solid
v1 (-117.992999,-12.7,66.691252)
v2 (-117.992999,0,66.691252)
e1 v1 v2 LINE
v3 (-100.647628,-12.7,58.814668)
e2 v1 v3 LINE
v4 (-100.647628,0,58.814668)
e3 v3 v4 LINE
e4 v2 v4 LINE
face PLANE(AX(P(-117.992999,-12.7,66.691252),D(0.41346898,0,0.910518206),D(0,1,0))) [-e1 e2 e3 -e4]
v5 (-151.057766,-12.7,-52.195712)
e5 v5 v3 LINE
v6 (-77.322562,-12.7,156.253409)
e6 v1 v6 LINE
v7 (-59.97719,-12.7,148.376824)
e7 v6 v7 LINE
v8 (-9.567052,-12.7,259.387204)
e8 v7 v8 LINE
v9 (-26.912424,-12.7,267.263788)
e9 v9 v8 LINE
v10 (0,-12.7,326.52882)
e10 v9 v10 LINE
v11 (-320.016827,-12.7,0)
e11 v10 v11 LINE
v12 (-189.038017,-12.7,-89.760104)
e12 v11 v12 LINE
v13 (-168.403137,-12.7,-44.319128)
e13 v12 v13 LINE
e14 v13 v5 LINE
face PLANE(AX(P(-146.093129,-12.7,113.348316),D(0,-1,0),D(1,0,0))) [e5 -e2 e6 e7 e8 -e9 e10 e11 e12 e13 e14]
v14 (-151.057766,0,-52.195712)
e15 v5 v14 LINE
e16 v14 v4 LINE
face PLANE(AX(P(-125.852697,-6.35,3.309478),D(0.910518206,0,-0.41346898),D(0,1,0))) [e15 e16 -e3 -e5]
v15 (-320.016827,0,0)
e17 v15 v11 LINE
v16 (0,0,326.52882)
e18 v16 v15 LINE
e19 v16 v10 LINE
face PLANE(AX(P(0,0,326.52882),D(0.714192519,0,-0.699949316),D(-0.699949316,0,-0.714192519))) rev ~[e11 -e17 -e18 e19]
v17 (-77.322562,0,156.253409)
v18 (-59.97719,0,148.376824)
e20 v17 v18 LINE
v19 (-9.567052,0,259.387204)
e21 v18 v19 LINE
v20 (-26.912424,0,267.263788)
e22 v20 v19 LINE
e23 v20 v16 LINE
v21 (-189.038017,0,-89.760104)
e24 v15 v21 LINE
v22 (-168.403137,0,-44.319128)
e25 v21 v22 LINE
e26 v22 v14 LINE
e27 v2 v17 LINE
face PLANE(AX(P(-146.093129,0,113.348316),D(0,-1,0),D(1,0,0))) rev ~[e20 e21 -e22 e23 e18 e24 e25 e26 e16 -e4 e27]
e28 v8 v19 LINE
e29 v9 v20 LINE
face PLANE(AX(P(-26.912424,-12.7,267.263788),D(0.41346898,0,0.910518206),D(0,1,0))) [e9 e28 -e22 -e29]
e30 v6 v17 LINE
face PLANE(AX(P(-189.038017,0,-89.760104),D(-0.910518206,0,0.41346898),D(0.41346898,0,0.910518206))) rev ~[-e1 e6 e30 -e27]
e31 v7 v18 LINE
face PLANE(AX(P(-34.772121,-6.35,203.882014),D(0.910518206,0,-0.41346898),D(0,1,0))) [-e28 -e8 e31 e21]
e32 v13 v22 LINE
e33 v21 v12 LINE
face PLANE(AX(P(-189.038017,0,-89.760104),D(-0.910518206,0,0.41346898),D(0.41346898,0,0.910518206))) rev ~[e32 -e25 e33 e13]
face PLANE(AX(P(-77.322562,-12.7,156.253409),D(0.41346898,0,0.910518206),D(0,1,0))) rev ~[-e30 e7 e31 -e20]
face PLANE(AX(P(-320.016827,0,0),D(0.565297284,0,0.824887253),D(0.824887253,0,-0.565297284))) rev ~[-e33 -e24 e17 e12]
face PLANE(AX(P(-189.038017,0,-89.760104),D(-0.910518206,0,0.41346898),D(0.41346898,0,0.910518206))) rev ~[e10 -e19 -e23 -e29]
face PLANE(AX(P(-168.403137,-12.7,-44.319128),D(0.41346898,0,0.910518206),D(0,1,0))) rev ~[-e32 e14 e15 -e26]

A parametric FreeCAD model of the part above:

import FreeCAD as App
import Part
import Sketcher
from FreeCAD import Vector
Q = App.Units.Quantity

doc = App.newDocument("Part")
body = doc.addObject("PartDesign::Body", "Body")

# Sketch on XZ plane
sketch1 = body.newObject("Sketcher::SketchObject", "Sketch")
sketch1.AttachmentSupport = (doc.getObject("XZ_Plane"), [""])
sketch1.MapMode = "FlatFace"
sketch1.addGeometry([
    Part.LineSegment(Vector(0, 327, 0), Vector(-320, 0, 0)),
    Part.LineSegment(Vector(-320, 0, 0), Vector(-189, -90, 0)),
    Part.LineSegment(Vector(-189, -90, 0), Vector(0, 327, 0)),
], False)
sketch1.addConstraint([
    Sketcher.Constraint("Coincident", 0, 2, 1, 1),
    Sketcher.Constraint("Coincident", 1, 2, 2, 1),
    Sketcher.Constraint("Coincident", 2, 2, 0, 1),
    Sketcher.Constraint("PointOnObject", 0, 2, -1),
    Sketcher.Constraint("PointOnObject", 2, 2, -2),
    Sketcher.Constraint("Equal", 0, 2),
    Sketcher.Constraint("Distance", 0, Q("18 in")),
    Sketcher.Constraint("DistanceY", -1, 1, 2, 2, Q("326.52882 mm")),
    Sketcher.Constraint("DistanceX", 0, 2, 1, 2, Q("130.97881 mm")),
])
pad1 = body.newObject("PartDesign::Pad", "Pad")
pad1.Profile = sketch1
pad1.Length = Q("0.5 in")

# Sketch on an angled plane
sketch2 = body.newObject("Sketcher::SketchObject", "Sketch001")
sketch2.Placement = App.Placement(Vector(-122.928642, 0, 55.822256), App.Rotation(Vector(0, 1, 0), Vector(0.41346898, 0, 0.910518206), Vector(0.910518206, 0, -0.41346898), "ZXY"))
sketch2.addGeometry([
    Part.LineSegment(Vector(-13, 232, 0), Vector(-13, 110, 0)),  # 0
    Part.LineSegment(Vector(-13, 110, 0), Vector(0, 110, 0)),  # 1
    Part.LineSegment(Vector(0, 110, 0), Vector(0, 232, 0)),  # 2
    Part.LineSegment(Vector(0, 232, 0), Vector(-13, 232, 0)),  # 3
    Part.LineSegment(Vector(-13, 12, 0), Vector(-13, -110, 0)),  # 4
    Part.LineSegment(Vector(-13, -110, 0), Vector(0, -110, 0)),  # 5
    Part.LineSegment(Vector(0, -110, 0), Vector(0, 12, 0)),  # 6
    Part.LineSegment(Vector(0, 12, 0), Vector(-13, 12, 0)),  # 7
], False)
sketch2.addConstraint([
    Sketcher.Constraint("Coincident", 0, 2, 1, 1),
    Sketcher.Constraint("Coincident", 1, 2, 2, 1),
    Sketcher.Constraint("Coincident", 2, 2, 3, 1),
    Sketcher.Constraint("Coincident", 3, 2, 0, 1),
    Sketcher.Constraint("Coincident", 4, 2, 5, 1),
    Sketcher.Constraint("Coincident", 5, 2, 6, 1),
    Sketcher.Constraint("Coincident", 6, 2, 7, 1),
    Sketcher.Constraint("Coincident", 7, 2, 4, 1),
    Sketcher.Constraint("Vertical", 0),
    Sketcher.Constraint("Horizontal", 1),
    Sketcher.Constraint("Vertical", 2),
    Sketcher.Constraint("Horizontal", 3),
    Sketcher.Constraint("Vertical", 4),
    Sketcher.Constraint("Horizontal", 5),
    Sketcher.Constraint("Vertical", 6),
    Sketcher.Constraint("Horizontal", 7),
    Sketcher.Constraint("PointOnObject", 1, 2, -2),
    Sketcher.Constraint("PointOnObject", 5, 2, -2),
    Sketcher.Constraint("Vertical", 3, 2, 4, 2),
    Sketcher.Constraint("Equal", 2, 4),
    Sketcher.Constraint("DistanceX", 1, 1, 1, 2, Q("0.5 in")),
    Sketcher.Constraint("DistanceY", 0, 2, 0, 1, Q("4.8 in")),
    Sketcher.Constraint("DistanceY", 4, 2, 0, 2, Q("220.283939 mm")),
    Sketcher.Constraint("DistanceY", -1, 1, 0, 2, Q("110.301092 mm")),
])
pad2 = body.newObject("PartDesign::Pad", "Pad001")
pad2.Profile = sketch2
pad2.Length = Q("0.75 in")

doc.recompute()
